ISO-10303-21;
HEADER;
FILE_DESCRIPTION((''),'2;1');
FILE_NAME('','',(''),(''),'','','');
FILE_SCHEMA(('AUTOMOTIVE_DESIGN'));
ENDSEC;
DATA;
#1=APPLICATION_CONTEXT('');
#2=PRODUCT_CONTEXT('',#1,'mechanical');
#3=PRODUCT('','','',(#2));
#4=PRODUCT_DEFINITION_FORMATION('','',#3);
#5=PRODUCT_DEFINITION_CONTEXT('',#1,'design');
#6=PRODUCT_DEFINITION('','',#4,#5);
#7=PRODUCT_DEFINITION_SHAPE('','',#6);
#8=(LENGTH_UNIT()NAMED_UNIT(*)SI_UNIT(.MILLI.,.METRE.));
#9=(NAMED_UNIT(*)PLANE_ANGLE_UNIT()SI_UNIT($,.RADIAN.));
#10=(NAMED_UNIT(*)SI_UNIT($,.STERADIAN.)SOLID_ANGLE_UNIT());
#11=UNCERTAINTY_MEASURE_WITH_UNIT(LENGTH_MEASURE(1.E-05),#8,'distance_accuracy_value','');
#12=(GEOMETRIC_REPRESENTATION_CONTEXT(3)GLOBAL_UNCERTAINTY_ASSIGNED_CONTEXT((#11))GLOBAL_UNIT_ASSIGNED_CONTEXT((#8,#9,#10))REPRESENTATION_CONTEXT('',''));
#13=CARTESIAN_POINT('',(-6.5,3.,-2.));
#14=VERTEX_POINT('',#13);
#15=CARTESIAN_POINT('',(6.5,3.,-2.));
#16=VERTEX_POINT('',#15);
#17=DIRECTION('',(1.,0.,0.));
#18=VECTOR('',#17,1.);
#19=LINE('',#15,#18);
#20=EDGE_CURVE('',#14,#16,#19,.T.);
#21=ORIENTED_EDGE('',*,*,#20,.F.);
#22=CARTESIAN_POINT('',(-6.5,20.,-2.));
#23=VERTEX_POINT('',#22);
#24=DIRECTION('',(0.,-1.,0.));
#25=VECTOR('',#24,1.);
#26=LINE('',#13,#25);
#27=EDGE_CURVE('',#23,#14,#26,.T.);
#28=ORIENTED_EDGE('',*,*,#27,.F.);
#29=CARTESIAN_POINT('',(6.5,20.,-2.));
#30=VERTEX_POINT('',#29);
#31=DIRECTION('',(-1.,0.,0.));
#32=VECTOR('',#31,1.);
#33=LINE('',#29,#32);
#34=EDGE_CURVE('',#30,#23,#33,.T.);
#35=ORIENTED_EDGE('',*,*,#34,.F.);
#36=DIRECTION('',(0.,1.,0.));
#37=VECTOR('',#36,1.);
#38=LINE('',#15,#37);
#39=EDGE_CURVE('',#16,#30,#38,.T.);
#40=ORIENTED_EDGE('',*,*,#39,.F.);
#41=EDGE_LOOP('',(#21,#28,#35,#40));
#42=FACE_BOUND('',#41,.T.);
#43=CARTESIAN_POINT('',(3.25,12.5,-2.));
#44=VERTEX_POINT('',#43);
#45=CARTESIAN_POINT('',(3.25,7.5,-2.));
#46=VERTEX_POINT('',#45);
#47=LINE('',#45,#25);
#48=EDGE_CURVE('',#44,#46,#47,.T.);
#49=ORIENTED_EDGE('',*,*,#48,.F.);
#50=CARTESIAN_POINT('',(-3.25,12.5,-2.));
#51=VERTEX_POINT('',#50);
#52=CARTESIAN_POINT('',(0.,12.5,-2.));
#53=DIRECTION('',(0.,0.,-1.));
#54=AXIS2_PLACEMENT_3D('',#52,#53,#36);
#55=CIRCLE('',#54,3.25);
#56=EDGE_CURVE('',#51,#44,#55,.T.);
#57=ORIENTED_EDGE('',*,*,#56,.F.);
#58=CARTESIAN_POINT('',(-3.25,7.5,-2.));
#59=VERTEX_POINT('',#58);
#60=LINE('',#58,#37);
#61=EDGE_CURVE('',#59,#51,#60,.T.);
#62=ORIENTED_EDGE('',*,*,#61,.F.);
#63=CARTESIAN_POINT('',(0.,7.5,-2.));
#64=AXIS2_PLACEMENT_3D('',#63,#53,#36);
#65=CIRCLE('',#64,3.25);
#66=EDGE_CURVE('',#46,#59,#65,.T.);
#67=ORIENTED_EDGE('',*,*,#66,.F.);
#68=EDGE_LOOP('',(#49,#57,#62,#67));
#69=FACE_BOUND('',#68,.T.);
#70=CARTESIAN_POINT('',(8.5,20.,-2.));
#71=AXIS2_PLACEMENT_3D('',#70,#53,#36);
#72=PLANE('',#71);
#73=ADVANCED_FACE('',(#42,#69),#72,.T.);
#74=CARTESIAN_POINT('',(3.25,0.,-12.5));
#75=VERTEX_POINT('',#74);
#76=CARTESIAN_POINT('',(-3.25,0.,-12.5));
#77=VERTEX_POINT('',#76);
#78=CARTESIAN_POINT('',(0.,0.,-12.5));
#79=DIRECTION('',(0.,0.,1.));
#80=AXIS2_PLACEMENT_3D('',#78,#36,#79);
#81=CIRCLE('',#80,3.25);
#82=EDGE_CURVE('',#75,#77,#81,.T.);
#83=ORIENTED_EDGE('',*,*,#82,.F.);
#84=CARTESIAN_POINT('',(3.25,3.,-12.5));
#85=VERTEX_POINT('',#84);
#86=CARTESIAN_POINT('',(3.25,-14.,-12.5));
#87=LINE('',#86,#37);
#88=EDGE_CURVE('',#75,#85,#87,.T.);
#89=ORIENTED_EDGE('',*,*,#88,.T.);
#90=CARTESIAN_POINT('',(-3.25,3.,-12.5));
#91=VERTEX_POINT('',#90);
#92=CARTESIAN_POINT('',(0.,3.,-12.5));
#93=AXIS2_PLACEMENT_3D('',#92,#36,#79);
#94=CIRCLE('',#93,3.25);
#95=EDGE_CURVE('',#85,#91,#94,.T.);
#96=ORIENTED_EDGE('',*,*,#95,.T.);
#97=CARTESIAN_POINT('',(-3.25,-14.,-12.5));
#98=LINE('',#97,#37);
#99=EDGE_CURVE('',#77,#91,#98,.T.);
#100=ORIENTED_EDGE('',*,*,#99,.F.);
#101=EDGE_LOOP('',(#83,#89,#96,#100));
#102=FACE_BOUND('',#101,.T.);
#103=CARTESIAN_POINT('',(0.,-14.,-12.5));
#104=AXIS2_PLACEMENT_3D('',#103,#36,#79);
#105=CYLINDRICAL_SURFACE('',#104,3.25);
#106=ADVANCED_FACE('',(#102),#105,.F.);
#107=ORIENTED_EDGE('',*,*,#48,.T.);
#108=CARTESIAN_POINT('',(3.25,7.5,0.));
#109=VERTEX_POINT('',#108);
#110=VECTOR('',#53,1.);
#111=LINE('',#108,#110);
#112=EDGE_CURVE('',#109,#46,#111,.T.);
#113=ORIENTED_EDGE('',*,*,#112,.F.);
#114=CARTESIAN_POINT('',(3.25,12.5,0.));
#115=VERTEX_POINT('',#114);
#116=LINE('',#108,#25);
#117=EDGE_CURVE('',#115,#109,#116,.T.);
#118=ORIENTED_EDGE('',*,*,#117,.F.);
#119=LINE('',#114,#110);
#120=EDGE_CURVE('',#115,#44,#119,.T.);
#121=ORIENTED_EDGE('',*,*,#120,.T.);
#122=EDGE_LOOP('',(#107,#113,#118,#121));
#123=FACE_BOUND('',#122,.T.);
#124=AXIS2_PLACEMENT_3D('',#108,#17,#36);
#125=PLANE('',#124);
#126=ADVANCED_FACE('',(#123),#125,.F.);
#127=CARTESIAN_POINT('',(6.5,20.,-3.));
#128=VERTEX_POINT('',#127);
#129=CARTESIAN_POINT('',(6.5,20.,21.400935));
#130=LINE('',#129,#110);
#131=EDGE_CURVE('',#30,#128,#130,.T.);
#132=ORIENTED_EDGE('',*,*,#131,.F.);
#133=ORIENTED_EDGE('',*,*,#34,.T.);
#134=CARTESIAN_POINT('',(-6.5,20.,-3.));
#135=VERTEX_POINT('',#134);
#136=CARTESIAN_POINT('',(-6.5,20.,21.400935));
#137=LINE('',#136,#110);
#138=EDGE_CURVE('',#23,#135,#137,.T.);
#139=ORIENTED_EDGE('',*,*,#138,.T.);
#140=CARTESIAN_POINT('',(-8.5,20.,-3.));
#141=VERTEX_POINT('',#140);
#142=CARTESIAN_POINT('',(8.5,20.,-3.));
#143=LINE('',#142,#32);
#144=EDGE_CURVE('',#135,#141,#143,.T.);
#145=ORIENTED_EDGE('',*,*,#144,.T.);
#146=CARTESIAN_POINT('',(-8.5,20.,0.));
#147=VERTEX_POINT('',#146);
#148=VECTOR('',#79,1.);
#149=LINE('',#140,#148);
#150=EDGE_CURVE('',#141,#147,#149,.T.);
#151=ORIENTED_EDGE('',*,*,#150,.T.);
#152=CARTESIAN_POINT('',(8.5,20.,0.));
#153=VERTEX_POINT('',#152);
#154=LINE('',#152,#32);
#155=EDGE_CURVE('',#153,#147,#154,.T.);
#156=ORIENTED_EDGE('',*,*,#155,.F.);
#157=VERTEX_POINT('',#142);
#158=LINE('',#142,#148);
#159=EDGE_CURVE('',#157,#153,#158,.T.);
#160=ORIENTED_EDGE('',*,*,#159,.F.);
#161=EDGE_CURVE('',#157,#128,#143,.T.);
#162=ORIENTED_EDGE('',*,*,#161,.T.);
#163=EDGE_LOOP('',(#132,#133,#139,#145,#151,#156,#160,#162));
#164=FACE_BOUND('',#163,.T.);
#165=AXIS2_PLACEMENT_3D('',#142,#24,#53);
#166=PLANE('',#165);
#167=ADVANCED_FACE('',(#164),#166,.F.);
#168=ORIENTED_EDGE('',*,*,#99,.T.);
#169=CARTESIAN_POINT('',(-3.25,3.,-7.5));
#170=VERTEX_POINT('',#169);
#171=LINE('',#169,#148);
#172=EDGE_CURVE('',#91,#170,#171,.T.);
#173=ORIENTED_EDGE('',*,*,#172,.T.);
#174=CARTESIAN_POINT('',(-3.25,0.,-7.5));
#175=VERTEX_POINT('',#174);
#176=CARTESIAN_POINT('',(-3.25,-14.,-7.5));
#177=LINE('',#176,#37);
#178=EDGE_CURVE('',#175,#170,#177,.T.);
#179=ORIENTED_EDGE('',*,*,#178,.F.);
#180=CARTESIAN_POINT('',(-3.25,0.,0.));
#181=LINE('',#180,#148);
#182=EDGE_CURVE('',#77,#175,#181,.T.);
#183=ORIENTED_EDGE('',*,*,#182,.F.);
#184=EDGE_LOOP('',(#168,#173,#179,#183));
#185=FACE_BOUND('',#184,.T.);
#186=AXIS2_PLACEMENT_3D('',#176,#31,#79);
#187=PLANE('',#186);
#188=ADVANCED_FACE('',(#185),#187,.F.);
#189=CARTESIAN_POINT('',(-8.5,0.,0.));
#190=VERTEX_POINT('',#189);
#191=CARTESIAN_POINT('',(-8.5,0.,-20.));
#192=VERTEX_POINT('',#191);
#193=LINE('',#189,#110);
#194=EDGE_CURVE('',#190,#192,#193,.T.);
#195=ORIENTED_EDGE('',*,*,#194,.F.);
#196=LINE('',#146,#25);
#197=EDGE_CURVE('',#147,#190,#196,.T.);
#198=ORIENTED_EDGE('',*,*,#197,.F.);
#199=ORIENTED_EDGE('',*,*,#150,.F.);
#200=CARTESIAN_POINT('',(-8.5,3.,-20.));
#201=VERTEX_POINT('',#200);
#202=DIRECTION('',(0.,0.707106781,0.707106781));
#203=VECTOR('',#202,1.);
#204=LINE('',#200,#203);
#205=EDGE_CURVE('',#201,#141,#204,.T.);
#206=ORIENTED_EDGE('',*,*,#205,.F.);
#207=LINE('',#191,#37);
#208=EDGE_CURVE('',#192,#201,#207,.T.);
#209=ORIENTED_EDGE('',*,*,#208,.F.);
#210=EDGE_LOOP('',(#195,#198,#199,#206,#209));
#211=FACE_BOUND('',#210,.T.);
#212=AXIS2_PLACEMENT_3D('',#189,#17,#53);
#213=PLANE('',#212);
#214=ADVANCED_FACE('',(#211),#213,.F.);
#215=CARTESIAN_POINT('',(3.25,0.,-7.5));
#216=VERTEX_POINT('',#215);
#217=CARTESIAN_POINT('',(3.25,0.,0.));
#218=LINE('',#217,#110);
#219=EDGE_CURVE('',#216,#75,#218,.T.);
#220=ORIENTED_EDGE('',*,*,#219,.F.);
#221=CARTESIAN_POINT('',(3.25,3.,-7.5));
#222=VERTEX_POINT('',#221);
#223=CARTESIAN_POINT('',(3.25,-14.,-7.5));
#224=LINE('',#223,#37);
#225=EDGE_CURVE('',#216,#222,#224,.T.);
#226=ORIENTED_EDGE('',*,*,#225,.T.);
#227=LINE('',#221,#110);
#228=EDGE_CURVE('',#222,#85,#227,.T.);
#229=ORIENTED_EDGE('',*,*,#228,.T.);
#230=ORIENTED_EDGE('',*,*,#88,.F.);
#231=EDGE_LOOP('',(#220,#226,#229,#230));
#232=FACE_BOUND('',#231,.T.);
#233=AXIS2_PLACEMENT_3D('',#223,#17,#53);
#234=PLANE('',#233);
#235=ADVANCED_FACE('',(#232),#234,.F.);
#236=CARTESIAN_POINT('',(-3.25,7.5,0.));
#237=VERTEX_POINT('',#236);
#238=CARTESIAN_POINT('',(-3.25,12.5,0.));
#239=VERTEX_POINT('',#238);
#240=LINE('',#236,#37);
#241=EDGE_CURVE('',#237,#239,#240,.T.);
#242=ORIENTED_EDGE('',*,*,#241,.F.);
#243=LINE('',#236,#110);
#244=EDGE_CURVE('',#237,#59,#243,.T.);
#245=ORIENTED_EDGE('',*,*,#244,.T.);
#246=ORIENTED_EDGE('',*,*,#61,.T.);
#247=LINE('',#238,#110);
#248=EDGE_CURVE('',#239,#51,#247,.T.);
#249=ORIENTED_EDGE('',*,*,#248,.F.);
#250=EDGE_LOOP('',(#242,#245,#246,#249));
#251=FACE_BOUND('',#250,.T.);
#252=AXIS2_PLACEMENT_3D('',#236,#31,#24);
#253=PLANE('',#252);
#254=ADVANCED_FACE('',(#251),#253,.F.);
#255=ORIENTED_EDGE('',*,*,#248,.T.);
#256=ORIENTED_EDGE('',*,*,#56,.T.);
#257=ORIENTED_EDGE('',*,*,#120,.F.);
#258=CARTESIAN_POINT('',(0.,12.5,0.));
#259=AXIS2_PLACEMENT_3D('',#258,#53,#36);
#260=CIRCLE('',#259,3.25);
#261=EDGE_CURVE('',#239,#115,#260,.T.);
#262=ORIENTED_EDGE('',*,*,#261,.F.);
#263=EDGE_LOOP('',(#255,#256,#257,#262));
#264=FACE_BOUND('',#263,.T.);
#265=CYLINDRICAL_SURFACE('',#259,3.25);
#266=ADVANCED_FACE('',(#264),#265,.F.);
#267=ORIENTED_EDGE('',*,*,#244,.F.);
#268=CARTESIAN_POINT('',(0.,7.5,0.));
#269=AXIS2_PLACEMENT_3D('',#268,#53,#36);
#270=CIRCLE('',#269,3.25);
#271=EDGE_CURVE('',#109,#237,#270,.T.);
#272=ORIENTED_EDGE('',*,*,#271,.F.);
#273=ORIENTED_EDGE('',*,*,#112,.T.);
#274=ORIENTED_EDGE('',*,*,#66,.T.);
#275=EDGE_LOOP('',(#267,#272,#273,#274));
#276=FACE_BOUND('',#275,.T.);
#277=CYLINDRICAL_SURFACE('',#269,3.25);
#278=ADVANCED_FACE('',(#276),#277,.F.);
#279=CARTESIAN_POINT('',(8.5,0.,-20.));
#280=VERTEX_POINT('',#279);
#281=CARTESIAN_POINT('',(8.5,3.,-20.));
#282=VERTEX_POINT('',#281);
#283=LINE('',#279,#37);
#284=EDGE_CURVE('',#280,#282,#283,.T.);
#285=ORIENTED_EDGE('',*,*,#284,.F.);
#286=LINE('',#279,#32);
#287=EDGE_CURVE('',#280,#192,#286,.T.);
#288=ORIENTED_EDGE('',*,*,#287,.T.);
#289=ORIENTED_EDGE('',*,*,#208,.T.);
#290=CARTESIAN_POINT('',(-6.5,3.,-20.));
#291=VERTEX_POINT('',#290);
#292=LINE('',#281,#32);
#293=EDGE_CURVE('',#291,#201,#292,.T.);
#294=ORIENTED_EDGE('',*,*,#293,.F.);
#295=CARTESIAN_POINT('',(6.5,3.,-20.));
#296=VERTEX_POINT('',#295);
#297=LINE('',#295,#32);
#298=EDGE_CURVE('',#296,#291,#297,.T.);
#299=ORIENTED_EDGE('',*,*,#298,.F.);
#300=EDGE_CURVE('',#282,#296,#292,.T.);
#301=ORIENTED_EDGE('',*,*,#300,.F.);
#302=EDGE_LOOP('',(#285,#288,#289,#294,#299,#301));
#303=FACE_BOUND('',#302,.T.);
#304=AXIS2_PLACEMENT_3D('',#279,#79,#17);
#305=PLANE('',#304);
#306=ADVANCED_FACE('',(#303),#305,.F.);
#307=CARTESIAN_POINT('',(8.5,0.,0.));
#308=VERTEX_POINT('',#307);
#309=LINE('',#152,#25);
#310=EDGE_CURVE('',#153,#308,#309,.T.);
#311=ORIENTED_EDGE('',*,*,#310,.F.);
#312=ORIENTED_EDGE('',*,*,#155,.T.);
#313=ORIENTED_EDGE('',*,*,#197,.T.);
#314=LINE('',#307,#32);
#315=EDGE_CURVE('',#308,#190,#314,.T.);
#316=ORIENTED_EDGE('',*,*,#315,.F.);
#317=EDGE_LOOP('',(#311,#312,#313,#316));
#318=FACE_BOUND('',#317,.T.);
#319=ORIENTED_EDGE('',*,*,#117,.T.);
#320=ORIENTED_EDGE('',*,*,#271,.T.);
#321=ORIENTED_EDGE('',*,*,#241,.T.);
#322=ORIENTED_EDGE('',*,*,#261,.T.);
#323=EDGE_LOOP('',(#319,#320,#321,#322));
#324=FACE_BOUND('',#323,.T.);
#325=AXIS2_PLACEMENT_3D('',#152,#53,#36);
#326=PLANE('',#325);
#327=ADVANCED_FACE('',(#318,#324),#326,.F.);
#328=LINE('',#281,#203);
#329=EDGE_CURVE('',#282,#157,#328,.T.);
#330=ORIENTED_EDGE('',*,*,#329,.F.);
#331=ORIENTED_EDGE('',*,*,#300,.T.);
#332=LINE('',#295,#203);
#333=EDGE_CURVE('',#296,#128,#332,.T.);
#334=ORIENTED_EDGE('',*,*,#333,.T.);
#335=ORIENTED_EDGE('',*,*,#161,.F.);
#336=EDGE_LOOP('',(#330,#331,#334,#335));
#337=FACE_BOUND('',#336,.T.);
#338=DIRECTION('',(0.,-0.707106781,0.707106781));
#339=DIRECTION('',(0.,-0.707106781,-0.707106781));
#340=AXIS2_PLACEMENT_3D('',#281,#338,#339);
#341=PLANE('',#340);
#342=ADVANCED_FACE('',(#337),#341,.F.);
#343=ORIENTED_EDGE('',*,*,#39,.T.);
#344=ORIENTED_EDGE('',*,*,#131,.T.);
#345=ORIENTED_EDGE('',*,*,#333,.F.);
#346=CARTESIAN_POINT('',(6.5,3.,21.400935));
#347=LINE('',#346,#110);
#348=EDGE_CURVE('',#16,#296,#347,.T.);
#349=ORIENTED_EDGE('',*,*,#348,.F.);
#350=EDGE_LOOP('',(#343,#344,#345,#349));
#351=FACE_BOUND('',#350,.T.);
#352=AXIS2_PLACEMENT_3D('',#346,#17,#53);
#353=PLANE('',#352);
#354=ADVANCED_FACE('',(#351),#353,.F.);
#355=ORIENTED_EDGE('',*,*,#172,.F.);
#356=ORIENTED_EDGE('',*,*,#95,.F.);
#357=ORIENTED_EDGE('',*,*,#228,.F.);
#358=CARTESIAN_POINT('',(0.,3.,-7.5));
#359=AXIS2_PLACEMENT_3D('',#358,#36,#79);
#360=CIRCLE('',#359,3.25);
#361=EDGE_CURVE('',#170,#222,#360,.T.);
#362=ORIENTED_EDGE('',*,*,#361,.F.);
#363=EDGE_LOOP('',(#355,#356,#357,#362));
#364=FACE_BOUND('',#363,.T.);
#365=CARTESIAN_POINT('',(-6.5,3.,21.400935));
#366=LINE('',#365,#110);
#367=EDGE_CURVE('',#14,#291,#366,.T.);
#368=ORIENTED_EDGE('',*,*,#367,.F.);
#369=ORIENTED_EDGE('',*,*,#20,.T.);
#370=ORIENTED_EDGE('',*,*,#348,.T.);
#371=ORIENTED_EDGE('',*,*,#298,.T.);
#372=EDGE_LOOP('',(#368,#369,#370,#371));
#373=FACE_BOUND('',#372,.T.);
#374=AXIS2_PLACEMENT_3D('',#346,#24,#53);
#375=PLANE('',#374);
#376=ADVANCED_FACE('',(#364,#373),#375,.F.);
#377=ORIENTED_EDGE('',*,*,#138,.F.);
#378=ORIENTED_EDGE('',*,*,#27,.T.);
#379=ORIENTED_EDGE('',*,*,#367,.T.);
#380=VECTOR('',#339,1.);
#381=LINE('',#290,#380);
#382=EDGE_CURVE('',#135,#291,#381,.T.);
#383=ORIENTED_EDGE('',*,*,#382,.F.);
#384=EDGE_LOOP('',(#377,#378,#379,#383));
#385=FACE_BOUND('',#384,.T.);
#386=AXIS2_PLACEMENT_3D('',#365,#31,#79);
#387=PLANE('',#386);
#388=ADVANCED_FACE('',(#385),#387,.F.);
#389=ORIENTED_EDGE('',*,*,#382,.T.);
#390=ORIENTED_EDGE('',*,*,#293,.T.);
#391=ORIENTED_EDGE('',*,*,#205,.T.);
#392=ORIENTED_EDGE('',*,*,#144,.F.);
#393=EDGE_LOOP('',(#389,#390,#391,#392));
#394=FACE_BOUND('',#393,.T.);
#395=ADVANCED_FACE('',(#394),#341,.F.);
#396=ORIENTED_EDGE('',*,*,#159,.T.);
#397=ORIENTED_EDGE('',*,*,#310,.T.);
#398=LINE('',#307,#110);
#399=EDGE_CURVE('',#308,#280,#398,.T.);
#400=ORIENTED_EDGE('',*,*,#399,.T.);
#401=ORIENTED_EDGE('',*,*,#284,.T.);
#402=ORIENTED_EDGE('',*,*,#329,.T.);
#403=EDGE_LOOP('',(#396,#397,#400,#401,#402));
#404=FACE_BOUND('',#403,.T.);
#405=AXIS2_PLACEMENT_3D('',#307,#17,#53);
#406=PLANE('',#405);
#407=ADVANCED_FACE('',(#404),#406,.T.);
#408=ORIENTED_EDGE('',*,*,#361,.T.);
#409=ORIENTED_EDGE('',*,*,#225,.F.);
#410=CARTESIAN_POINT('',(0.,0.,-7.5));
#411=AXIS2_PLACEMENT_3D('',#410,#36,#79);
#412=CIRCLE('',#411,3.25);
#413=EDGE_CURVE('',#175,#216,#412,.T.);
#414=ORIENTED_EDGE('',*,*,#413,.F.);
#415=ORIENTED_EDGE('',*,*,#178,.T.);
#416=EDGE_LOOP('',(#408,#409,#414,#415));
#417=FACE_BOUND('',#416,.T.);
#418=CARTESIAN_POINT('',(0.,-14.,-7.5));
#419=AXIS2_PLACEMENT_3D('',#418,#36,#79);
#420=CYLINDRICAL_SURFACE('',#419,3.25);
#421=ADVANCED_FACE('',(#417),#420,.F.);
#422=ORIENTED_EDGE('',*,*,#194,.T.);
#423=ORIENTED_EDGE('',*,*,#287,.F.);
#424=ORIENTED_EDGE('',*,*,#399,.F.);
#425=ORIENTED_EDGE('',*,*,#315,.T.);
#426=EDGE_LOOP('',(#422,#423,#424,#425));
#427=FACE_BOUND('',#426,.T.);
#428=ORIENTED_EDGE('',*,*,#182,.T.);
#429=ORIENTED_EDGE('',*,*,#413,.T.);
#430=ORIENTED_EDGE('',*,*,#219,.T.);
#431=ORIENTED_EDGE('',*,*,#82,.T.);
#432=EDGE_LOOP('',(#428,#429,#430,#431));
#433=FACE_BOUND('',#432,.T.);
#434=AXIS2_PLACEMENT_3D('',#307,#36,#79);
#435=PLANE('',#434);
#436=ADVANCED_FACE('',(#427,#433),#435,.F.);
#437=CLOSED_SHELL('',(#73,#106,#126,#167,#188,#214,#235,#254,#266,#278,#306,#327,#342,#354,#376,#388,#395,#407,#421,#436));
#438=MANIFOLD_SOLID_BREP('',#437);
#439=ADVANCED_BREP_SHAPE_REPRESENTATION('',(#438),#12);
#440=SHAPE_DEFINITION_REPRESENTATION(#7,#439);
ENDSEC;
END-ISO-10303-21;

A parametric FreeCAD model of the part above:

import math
import FreeCAD as App
import Part
import Sketcher

V = App.Vector


def add_polygon(sketch, points):
    """Adds a closed chain of lines whose ends are joined by coincident constraints."""
    first, n = sketch.GeometryCount, len(points)
    for a, b in zip(points, points[1:] + points[:1]):
        sketch.addGeometry(Part.LineSegment(App.Vector(*a, 0), App.Vector(*b, 0)), False)
    for i in range(n):
        sketch.addConstraint(Sketcher.Constraint("Coincident", first + i, 2, first + (i + 1) % n, 1))

doc = App.newDocument("Part")
body = doc.addObject("PartDesign::Body", "Body")

sketch1 = doc.addObject("Sketcher::SketchObject", "Sketch")
body.addObject(sketch1)
sketch1.AttachmentSupport = (doc.YZ_Plane, [""])
sketch1.MapMode = "FlatFace"
add_polygon(sketch1, [(20, -3), (20, 0), (0, 0), (0, -20), (3, -20)])
sketch1.addConstraint([
    Sketcher.Constraint("Vertical", 0),
    Sketcher.Constraint("Horizontal", 1),
    Sketcher.Constraint("Vertical", 2),
    Sketcher.Constraint("Horizontal", 3),
    Sketcher.Constraint("Coincident", 1, 2, -1, 1),
    Sketcher.Constraint("Equal", 3, 0),
    Sketcher.Constraint("Equal", 1, 2),
    Sketcher.Constraint("DistanceX", 1, 2, 1, 1, 20.0),
    Sketcher.Constraint("DistanceX", 3, 1, 3, 2, 3.0),
])
pad1 = doc.addObject("PartDesign::Pad", "Pad")
body.addObject(pad1)
pad1.Profile = sketch1
pad1.Length = 17
pad1.Midplane = True

sketch2 = doc.addObject("Sketcher::SketchObject", "Sketch001")
body.addObject(sketch2)
sketch2.AttachmentSupport = (doc.XY_Plane, [""])
sketch2.MapMode = "FlatFace"
sketch2.AttachmentOffset = App.Placement(V(0, 0, -20), App.Rotation())
add_polygon(sketch2, [(6, 20), (6, 3), (-6, 3), (-6, 20)])
sketch2.addConstraint([
    Sketcher.Constraint("Vertical", 0),
    Sketcher.Constraint("Horizontal", 1),
    Sketcher.Constraint("Vertical", 2),
    Sketcher.Constraint("Horizontal", 3),
    Sketcher.Constraint("DistanceX", 1, 2, 1, 1, 13.0),
    Sketcher.Constraint("DistanceY", 0, 2, 0, 1, 17.0),
    Sketcher.Constraint("DistanceY", -1, 1, 0, 2, 3.0),
    Sketcher.Constraint("DistanceX", -1, 1, 0, 2, 6.5),
])
pocket1 = doc.addObject("PartDesign::Pocket", "Pocket")
body.addObject(pocket1)
pocket1.Profile = sketch2
pocket1.Length = 18
pocket1.Reversed = True

sketch3 = doc.addObject("Sketcher::SketchObject", "Sketch002")
body.addObject(sketch3)
sketch3.AttachmentSupport = (doc.XY_Plane, [""])
sketch3.MapMode = "FlatFace"
sketch3.AttachmentOffset = App.Placement(V(0, 0, -2), App.Rotation())
sketch3.addGeometry([
    Part.LineSegment(V(3.2, 12.5, 0), V(3.2, 7.5, 0)),
    Part.ArcOfCircle(Part.Circle(V(0, 7.5, 0), V(0, 0, 1), 3.2), math.radians(180), math.radians(360)),
    Part.LineSegment(V(-3.2, 7.5, 0), V(-3.2, 12.5, 0)),
    Part.ArcOfCircle(Part.Circle(V(0, 12.5, 0), V(0, 0, 1), 3.2), math.radians(0), math.radians(180)),
], False)
sketch3.addConstraint([
    Sketcher.Constraint("Tangent", 0, 2, 1, 2),
    Sketcher.Constraint("Tangent", 1, 1, 2, 1),
    Sketcher.Constraint("Tangent", 2, 2, 3, 2),
    Sketcher.Constraint("Tangent", 3, 1, 0, 1),
    Sketcher.Constraint("Vertical", 0),
    Sketcher.Constraint("Vertical", 2),
    Sketcher.Constraint("PointOnObject", 1, 3, -2),
    Sketcher.Constraint("DistanceY", 0, 2, 0, 1, 5.0),
    Sketcher.Constraint("Radius", 1, 3.25),
    Sketcher.Constraint("DistanceY", -1, 1, 1, 3, 7.5),
])
pocket2 = doc.addObject("PartDesign::Pocket", "Pocket001")
body.addObject(pocket2)
pocket2.Profile = sketch3
pocket2.Type = "ThroughAll"
pocket2.Reversed = True

sketch4 = doc.addObject("Sketcher::SketchObject", "Sketch003")
body.addObject(sketch4)
sketch4.AttachmentSupport = (doc.XZ_Plane, [""])
sketch4.MapMode = "FlatFace"
sketch4.AttachmentOffset = App.Placement(V(0, 0, -3), App.Rotation())
sketch4.addGeometry([
    Part.LineSegment(V(-3.2, -12.5, 0), V(-3.2, -7.5, 0)),
    Part.ArcOfCircle(Part.Circle(V(0, -7.5, 0), V(0, 0, 1), 3.2), math.radians(0), math.radians(180)),
    Part.LineSegment(V(3.2, -7.5, 0), V(3.2, -12.5, 0)),
    Part.ArcOfCircle(Part.Circle(V(0, -12.5, 0), V(0, 0, 1), 3.2), math.radians(180), math.radians(360)),
], False)
sketch4.addConstraint([
    Sketcher.Constraint("Tangent", 0, 2, 1, 2),
    Sketcher.Constraint("Tangent", 1, 1, 2, 1),
    Sketcher.Constraint("Tangent", 2, 2, 3, 2),
    Sketcher.Constraint("Tangent", 3, 1, 0, 1),
    Sketcher.Constraint("Vertical", 0),
    Sketcher.Constraint("Vertical", 2),
    Sketcher.Constraint("PointOnObject", 1, 3, -2),
    Sketcher.Constraint("DistanceY", 0, 1, 0, 2, 5.0),
    Sketcher.Constraint("Radius", 1, 3.25),
    Sketcher.Constraint("DistanceY", 1, 3, -1, 1, 7.5),
])
pocket3 = doc.addObject("PartDesign::Pocket", "Pocket002")
body.addObject(pocket3)
pocket3.Profile = sketch4
pocket3.Length = 17
pocket3.Reversed = True

doc.recompute()
